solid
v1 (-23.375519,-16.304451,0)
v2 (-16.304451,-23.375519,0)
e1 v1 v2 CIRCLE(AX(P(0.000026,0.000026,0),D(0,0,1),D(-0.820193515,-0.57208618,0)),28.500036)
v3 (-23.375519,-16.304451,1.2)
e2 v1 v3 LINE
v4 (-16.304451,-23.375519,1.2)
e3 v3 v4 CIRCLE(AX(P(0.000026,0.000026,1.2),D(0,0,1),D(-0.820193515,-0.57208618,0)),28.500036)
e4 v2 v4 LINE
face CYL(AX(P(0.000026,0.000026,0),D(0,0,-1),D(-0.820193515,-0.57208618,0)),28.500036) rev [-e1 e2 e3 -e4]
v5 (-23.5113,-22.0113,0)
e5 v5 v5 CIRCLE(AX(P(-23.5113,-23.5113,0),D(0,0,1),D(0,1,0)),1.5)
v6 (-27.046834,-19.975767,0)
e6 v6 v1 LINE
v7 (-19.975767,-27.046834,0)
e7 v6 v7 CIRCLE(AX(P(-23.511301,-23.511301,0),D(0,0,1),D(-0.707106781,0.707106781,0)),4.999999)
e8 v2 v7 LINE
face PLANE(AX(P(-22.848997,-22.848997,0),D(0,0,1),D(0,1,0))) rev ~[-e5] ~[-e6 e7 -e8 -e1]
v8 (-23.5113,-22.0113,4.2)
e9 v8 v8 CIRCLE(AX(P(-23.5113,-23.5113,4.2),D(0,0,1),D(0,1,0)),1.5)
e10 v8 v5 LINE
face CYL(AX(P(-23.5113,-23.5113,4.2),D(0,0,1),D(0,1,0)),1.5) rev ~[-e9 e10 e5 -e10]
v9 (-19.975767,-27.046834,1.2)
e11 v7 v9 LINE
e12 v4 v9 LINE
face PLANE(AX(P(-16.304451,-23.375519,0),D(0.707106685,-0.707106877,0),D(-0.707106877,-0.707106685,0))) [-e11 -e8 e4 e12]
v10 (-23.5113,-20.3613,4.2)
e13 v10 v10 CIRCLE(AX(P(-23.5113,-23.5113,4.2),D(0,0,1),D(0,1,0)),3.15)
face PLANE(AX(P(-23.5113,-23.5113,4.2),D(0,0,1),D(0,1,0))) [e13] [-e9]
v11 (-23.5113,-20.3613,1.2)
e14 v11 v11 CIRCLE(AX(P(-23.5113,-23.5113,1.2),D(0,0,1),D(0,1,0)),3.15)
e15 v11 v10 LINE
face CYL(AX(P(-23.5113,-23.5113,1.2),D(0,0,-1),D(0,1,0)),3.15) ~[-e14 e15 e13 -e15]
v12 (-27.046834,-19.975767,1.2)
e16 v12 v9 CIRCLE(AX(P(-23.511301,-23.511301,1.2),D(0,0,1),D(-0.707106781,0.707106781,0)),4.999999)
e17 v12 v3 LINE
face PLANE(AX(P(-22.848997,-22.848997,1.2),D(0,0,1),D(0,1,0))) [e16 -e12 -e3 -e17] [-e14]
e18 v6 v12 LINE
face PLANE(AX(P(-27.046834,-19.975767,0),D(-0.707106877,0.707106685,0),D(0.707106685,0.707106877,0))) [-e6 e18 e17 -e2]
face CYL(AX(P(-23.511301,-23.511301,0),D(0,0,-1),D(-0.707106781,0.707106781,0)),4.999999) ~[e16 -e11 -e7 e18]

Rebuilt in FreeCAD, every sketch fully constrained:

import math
import FreeCAD as App
import Part
import Sketcher
from FreeCAD import Vector
Q = App.Units.Quantity

doc = App.newDocument("Part")
body = doc.addObject("PartDesign::Body", "Body")

# Sketch on XY plane
sketch1 = doc.addObject("Sketcher::SketchObject", "Sketch")
body.addObject(sketch1)
sketch1.AttachmentSupport = (doc.XY_Plane, [""])
sketch1.MapMode = "FlatFace"
sketch1.addGeometry([
    Part.ArcOfCircle(Part.Circle(Vector(-23.5, 23.5, 0), Vector(0, 0, 1), 5), math.radians(45), math.radians(225)),
    Part.LineSegment(Vector(-27, 20, 0), Vector(-23.4, 16.3, 0)),
    Part.ArcOfCircle(Part.Circle(Vector(0, 0, 0), Vector(0, 0, 1), 28.5), math.radians(125), math.radians(145)),
    Part.LineSegment(Vector(-16.3, 23.4, 0), Vector(-20, 27, 0)),
], False)
sketch1.addConstraint([
    Sketcher.Constraint("Tangent", 0, 2, 1, 1),
    Sketcher.Constraint("Coincident", 1, 2, 2, 2),
    Sketcher.Constraint("Coincident", 2, 1, 3, 1),
    Sketcher.Constraint("Tangent", 3, 2, 0, 1),
    Sketcher.Constraint("Parallel", 1, 3),
    Sketcher.Constraint("Equal", 1, 3),
    Sketcher.Constraint("Radius", 0, Q("4.999999 mm")),
    Sketcher.Constraint("Angle", 1, Q("-45.000008 deg")),
    Sketcher.Constraint("Radius", 2, Q("28.500036 mm")),
    Sketcher.Constraint("DistanceX", 0, 3, -1, 1, Q("23.511301 mm")),
    Sketcher.Constraint("DistanceY", -1, 1, 0, 3, Q("23.511301 mm")),
    Sketcher.Constraint("DistanceX", 1, 2, -1, 1, Q("23.375519 mm")),
])
pad1 = doc.addObject("PartDesign::Pad", "Pad")
body.addObject(pad1)
pad1.Profile = sketch1
pad1.Length = 1.2

# Sketch on XY plane
sketch2 = doc.addObject("Sketcher::SketchObject", "Sketch001")
body.addObject(sketch2)
sketch2.AttachmentSupport = (doc.XY_Plane, [""])
sketch2.MapMode = "FlatFace"
sketch2.AttachmentOffset = App.Placement(Vector(0, 0, 1.2), App.Rotation())
sketch2.addGeometry(Part.Circle(Vector(-23.5, 23.5, 0), Vector(0, 0, 1), 3.1), False)
sketch2.addConstraint([
    Sketcher.Constraint("Diameter", 0, Q("6.3 mm")),
    Sketcher.Constraint("DistanceX", 0, 3, -1, 1, Q("23.5113 mm")),
    Sketcher.Constraint("DistanceY", -1, 1, 0, 3, Q("23.5113 mm")),
])
pad2 = doc.addObject("PartDesign::Pad", "Pad001")
body.addObject(pad2)
pad2.Profile = sketch2
pad2.Length = 3

# Sketch on XY plane
sketch3 = doc.addObject("Sketcher::SketchObject", "Sketch002")
body.addObject(sketch3)
sketch3.AttachmentSupport = (doc.XY_Plane, [""])
sketch3.MapMode = "FlatFace"
sketch3.AttachmentOffset = App.Placement(Vector(0, 0, 4.2), App.Rotation())
sketch3.addGeometry(Part.Circle(Vector(-23.5, 23.5, 0), Vector(0, 0, 1), 0.8), False)
sketch3.addConstraint([
    Sketcher.Constraint("Diameter", 0, Q("1.6 mm")),
    Sketcher.Constraint("DistanceX", 0, 3, -1, 1, Q("23.5113 mm")),
    Sketcher.Constraint("DistanceY", -1, 1, 0, 3, Q("23.5113 mm")),
])
pocket1 = doc.addObject("PartDesign::Pocket", "Pocket")
body.addObject(pocket1)
pocket1.Profile = sketch3
pocket1.Type = "ThroughAll"

# Sketch on XY plane
sketch4 = doc.addObject("Sketcher::SketchObject", "Sketch003")
body.addObject(sketch4)
sketch4.AttachmentSupport = (doc.XY_Plane, [""])
sketch4.MapMode = "FlatFace"
sketch4.AttachmentOffset = App.Placement(Vector(0, 0, 4.2), App.Rotation())
sketch4.addGeometry(Part.Circle(Vector(-23.5, 23.5, 0), Vector(0, 0, 1), 1.5), False)
sketch4.addConstraint([
    Sketcher.Constraint("Diameter", 0, Q("3 mm")),
    Sketcher.Constraint("DistanceX", 0, 3, -1, 1, Q("23.5113 mm")),
    Sketcher.Constraint("DistanceY", -1, 1, 0, 3, Q("23.5113 mm")),
])
pocket2 = doc.addObject("PartDesign::Pocket", "Pocket001")
body.addObject(pocket2)
pocket2.Profile = sketch4
pocket2.Length = 5
body2 = doc.addObject("PartDesign::Body", "Body001")
doc.recompute()

body.Placement = App.Placement(Vector(0, 0, 0), App.Rotation(Vector(0, 0, 1), 90))
boolean = doc.addObject("PartDesign::Boolean", "Boolean")
body2.addObject(boolean)
boolean.Type = "Fuse"
boolean.addObjects([body])

doc.recompute()
